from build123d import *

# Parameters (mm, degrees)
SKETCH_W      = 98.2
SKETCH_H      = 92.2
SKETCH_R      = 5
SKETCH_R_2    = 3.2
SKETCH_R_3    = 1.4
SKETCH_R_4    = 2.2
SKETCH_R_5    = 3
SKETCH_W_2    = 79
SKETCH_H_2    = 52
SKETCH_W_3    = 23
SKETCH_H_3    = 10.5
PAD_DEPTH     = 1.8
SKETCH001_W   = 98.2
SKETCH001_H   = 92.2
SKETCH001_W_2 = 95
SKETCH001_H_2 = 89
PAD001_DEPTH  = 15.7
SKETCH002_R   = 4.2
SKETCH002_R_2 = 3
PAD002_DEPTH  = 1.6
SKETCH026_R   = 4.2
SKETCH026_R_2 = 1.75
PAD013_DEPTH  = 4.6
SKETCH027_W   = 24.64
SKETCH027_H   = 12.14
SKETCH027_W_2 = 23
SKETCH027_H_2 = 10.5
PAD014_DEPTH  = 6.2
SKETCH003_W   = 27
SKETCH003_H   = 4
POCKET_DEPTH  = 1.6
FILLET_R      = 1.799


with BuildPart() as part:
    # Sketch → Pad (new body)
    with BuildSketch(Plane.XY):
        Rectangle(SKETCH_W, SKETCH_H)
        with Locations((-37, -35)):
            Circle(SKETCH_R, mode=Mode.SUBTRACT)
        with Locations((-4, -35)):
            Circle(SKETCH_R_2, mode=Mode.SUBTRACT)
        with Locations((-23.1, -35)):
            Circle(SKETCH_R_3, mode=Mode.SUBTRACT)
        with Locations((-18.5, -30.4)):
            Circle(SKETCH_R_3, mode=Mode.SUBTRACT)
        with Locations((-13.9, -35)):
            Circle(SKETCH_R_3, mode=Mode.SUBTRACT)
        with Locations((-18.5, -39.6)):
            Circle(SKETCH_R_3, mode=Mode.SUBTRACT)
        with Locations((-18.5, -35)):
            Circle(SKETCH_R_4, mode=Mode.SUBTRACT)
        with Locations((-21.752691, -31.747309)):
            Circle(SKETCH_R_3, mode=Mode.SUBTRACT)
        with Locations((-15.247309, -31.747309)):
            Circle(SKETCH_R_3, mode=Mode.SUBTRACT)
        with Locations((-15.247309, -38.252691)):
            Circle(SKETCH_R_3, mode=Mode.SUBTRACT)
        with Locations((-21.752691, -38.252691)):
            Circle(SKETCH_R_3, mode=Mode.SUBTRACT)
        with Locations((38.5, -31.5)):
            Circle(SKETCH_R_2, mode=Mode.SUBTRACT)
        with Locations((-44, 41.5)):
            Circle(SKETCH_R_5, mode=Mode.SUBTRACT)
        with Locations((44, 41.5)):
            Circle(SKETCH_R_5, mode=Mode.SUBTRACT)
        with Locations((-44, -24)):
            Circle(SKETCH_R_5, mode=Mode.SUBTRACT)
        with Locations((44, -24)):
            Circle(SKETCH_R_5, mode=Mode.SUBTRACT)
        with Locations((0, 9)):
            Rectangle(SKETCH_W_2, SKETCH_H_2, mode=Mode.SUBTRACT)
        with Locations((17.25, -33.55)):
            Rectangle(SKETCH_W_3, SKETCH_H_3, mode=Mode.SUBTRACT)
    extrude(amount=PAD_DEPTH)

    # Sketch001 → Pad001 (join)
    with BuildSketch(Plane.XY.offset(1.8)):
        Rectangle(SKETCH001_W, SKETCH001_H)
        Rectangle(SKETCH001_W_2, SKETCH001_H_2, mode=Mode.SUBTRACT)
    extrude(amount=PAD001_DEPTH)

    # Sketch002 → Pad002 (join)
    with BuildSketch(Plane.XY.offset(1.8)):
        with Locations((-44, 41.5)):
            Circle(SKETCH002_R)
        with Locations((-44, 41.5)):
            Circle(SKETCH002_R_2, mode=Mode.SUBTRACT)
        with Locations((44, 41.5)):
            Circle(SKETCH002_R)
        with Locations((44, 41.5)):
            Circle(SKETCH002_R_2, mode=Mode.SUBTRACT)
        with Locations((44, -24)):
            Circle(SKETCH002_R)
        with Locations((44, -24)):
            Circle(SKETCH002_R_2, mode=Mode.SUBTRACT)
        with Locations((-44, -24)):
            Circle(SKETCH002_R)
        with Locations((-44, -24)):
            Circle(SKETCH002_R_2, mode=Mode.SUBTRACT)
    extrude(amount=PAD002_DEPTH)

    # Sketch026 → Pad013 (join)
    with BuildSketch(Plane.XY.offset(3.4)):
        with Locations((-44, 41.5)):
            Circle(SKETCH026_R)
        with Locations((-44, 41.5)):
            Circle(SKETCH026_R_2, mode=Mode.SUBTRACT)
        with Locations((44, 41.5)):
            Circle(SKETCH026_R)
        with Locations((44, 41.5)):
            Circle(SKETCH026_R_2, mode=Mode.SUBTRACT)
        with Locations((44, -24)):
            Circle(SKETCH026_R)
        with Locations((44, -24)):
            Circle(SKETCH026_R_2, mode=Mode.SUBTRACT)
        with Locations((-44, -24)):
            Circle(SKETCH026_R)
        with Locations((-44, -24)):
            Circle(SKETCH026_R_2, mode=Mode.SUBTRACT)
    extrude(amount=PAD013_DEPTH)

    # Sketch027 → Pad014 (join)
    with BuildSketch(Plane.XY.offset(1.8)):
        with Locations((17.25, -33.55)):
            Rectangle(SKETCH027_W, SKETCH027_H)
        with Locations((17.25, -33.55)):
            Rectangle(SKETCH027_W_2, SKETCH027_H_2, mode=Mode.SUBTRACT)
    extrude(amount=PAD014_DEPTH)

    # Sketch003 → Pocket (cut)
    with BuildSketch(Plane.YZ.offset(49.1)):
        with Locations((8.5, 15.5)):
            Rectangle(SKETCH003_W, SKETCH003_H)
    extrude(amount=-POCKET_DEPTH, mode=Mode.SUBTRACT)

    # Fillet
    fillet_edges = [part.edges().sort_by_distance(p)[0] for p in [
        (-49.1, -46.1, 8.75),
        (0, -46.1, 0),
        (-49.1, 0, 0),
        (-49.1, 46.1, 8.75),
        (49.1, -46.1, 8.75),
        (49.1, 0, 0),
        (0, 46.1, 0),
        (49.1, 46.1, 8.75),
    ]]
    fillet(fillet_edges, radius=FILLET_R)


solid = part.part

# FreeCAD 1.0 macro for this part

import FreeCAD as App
import Part
import Sketcher
Q = App.Units.Quantity


def edges_at(feature, points):
    """Names of the edges that pass closest to the given points."""
    edges = feature.Shape.Edges
    near = lambda p: min(range(len(edges)), key=lambda i: edges[i].distToShape(Part.Vertex(*p))[0])
    return sorted({f"Edge{near(p) + 1}" for p in points})

doc = App.newDocument("Part")
body = doc.addObject("PartDesign::Body", "Body")

# Sketch on XY plane
sketch1 = body.newObject("Sketcher::SketchObject", "Sketch")
sketch1.AttachmentSupport = (doc.getObject("XY_Plane"), [""])
sketch1.MapMode = "FlatFace"
sketch1.addGeometry([
    Part.LineSegment(App.Vector(-49.1, 46.1, 0), App.Vector(-49.1, -46.1, 0)),  # 0
    Part.LineSegment(App.Vector(-49.1, -46.1, 0), App.Vector(49.1, -46.1, 0)),  # 1
    Part.LineSegment(App.Vector(49.1, -46.1, 0), App.Vector(49.1, 46.1, 0)),  # 2
    Part.LineSegment(App.Vector(49.1, 46.1, 0), App.Vector(-49.1, 46.1, 0)),  # 3
    Part.Circle(App.Vector(-37, -35, 0), App.Vector(0, 0, 1), 5),  # 4
    Part.Circle(App.Vector(-44, -24, 0), App.Vector(0, 0, 1), 3),  # 5
    Part.Circle(App.Vector(-18.5, -39.6, 0), App.Vector(0, 0, 1), 1.4),  # 6
    Part.Circle(App.Vector(-21.752691, -38.252691, 0), App.Vector(0, 0, 1), 1.4),  # 7
    Part.Circle(App.Vector(-15.247309, -38.252691, 0), App.Vector(0, 0, 1), 1.4),  # 8
    Part.Circle(App.Vector(-23.1, -35, 0), App.Vector(0, 0, 1), 1.4),  # 9
    Part.Circle(App.Vector(-18.5, -35, 0), App.Vector(0, 0, 1), 2.2),  # 10
    Part.Circle(App.Vector(-21.752691, -31.747309, 0), App.Vector(0, 0, 1), 1.4),  # 11
    Part.Circle(App.Vector(-18.5, -30.4, 0), App.Vector(0, 0, 1), 1.4),  # 12
    Part.Circle(App.Vector(-13.9, -35, 0), App.Vector(0, 0, 1), 1.4),  # 13
    Part.Circle(App.Vector(-15.247309, -31.747309, 0), App.Vector(0, 0, 1), 1.4),  # 14
    Part.Circle(App.Vector(-4, -35, 0), App.Vector(0, 0, 1), 3.2),  # 15
    Part.LineSegment(App.Vector(28.75, -38.8, 0), App.Vector(5.75, -38.8, 0)),  # 16
    Part.LineSegment(App.Vector(5.75, -38.8, 0), App.Vector(5.75, -28.3, 0)),  # 17
    Part.LineSegment(App.Vector(5.75, -28.3, 0), App.Vector(28.75, -28.3, 0)),  # 18
    Part.LineSegment(App.Vector(28.75, -28.3, 0), App.Vector(28.75, -38.8, 0)),  # 19
    Part.Circle(App.Vector(38.5, -31.5, 0), App.Vector(0, 0, 1), 3.2),  # 20
    Part.Circle(App.Vector(44, -24, 0), App.Vector(0, 0, 1), 3),  # 21
    Part.Circle(App.Vector(-44, 41.5, 0), App.Vector(0, 0, 1), 3),  # 22
    Part.LineSegment(App.Vector(39.5, -17, 0), App.Vector(-39.5, -17, 0)),  # 23
    Part.LineSegment(App.Vector(-39.5, -17, 0), App.Vector(-39.5, 35, 0)),  # 24
    Part.LineSegment(App.Vector(-39.5, 35, 0), App.Vector(39.5, 35, 0)),  # 25
    Part.LineSegment(App.Vector(39.5, 35, 0), App.Vector(39.5, -17, 0)),  # 26
    Part.Circle(App.Vector(44, 41.5, 0), App.Vector(0, 0, 1), 3),  # 27
], False)
sketch1.addConstraint([
    Sketcher.Constraint("Coincident", 0, 2, 1, 1),
    Sketcher.Constraint("Coincident", 1, 2, 2, 1),
    Sketcher.Constraint("Coincident", 2, 2, 3, 1),
    Sketcher.Constraint("Coincident", 3, 2, 0, 1),
    Sketcher.Constraint("Coincident", 16, 2, 17, 1),
    Sketcher.Constraint("Coincident", 17, 2, 18, 1),
    Sketcher.Constraint("Coincident", 18, 2, 19, 1),
    Sketcher.Constraint("Coincident", 19, 2, 16, 1),
    Sketcher.Constraint("Coincident", 23, 2, 24, 1),
    Sketcher.Constraint("Coincident", 24, 2, 25, 1),
    Sketcher.Constraint("Coincident", 25, 2, 26, 1),
    Sketcher.Constraint("Coincident", 26, 2, 23, 1),
    Sketcher.Constraint("Vertical", 0),
    Sketcher.Constraint("Horizontal", 1),
    Sketcher.Constraint("Vertical", 2),
    Sketcher.Constraint("Horizontal", 3),
    Sketcher.Constraint("Horizontal", 16),
    Sketcher.Constraint("Vertical", 17),
    Sketcher.Constraint("Horizontal", 18),
    Sketcher.Constraint("Vertical", 19),
    Sketcher.Constraint("Horizontal", 23),
    Sketcher.Constraint("Vertical", 24),
    Sketcher.Constraint("Horizontal", 25),
    Sketcher.Constraint("Vertical", 26),
    Sketcher.Constraint("Equal", 6, 7),
    Sketcher.Constraint("Equal", 7, 8),
    Sketcher.Constraint("Equal", 8, 9),
    Sketcher.Constraint("Equal", 9, 11),
    Sketcher.Constraint("Equal", 11, 12),
    Sketcher.Constraint("Equal", 12, 13),
    Sketcher.Constraint("Equal", 13, 14),
    Sketcher.Constraint("Equal", 15, 20),
    Sketcher.Constraint("Equal", 5, 21),
    Sketcher.Constraint("Equal", 21, 22),
    Sketcher.Constraint("Equal", 22, 27),
    Sketcher.Constraint("Symmetric", 0, 2, 2, 2, -1, 1),
    Sketcher.Constraint("Symmetric", 5, 3, 21, 3, -2),
    Sketcher.Constraint("Symmetric", 22, 3, 27, 3, -2),
    Sketcher.Constraint("Horizontal", 7, 3, 8, 3),
    Sketcher.Constraint("Horizontal", 4, 3, 9, 3),
    Sketcher.Constraint("Horizontal", 9, 3, 10, 3),
    Sketcher.Constraint("Horizontal", 10, 3, 13, 3),
    Sketcher.Constraint("Horizontal", 11, 3, 14, 3),
    Sketcher.Constraint("Horizontal", 13, 3, 15, 3),
    Sketcher.Constraint("Vertical", 6, 3, 10, 3),
    Sketcher.Constraint("Vertical", 7, 3, 11, 3),
    Sketcher.Constraint("Vertical", 10, 3, 12, 3),
    Sketcher.Constraint("Vertical", 8, 3, 14, 3),
    Sketcher.Constraint("Vertical", 5, 3, 22, 3),
    Sketcher.Constraint("Diameter", 4, Q("10 mm")),
    Sketcher.Constraint("Diameter", 5, Q("6 mm")),
    Sketcher.Constraint("Diameter", 6, Q("2.8 mm")),
    Sketcher.Constraint("Diameter", 10, Q("4.4 mm")),
    Sketcher.Constraint("Diameter", 15, Q("6.4 mm")),
    Sketcher.Constraint("DistanceX", 16, 2, 16, 1, Q("23 mm")),
    Sketcher.Constraint("DistanceX", 23, 2, 23, 1, Q("79 mm")),
    Sketcher.Constraint("DistanceY", 24, 1, 24, 2, Q("52 mm")),
    Sketcher.Constraint("DistanceX", 1, 1, 1, 2, Q("98.2 mm")),
    Sketcher.Constraint("DistanceY", 0, 2, 0, 1, Q("92.2 mm")),
    Sketcher.Constraint("DistanceY", 17, 1, 17, 2, Q("10.5 mm")),
    Sketcher.Constraint("DistanceX", 4, 3, -1, 1, Q("37 mm")),
    Sketcher.Constraint("DistanceY", 4, 3, -1, 1, Q("35 mm")),
    Sketcher.Constraint("DistanceX", 5, 3, -1, 1, Q("44 mm")),
    Sketcher.Constraint("DistanceY", 5, 3, -1, 1, Q("24 mm")),
    Sketcher.Constraint("DistanceX", 15, 3, -1, 1, Q("4 mm")),
    Sketcher.Constraint("DistanceY", 23, 2, -1, 1, Q("17 mm")),
    Sketcher.Constraint("DistanceX", 12, 3, 20, 3, Q("57 mm")),
    Sketcher.Constraint("DistanceY", 20, 3, 27, 3, Q("73 mm")),
    Sketcher.Constraint("DistanceX", 0, 2, 9, 3, Q("26 mm")),
    Sketcher.Constraint("DistanceX", 13, 3, 1, 2, Q("63 mm")),
    Sketcher.Constraint("DistanceX", 23, 2, 12, 3, Q("21 mm")),
    Sketcher.Constraint("DistanceX", 6, 3, -1, 1, Q("18.5 mm")),
    Sketcher.Constraint("DistanceY", 6, 3, -1, 1, Q("39.6 mm")),
    Sketcher.Constraint("DistanceY", 12, 3, -1, 1, Q("30.4 mm")),
    Sketcher.Constraint("DistanceY", 20, 3, -1, 1, Q("31.5 mm")),
    Sketcher.Constraint("DistanceY", 16, 2, -1, 1, Q("38.8 mm")),
    Sketcher.Constraint("DistanceX", -1, 1, 16, 2, Q("5.75 mm")),
    Sketcher.Constraint("DistanceX", 7, 3, -1, 1, Q("21.752691 mm")),
    Sketcher.Constraint("DistanceY", 7, 3, -1, 1, Q("38.252691 mm")),
    Sketcher.Constraint("DistanceX", 8, 3, -1, 1, Q("15.247309 mm")),
    Sketcher.Constraint("DistanceY", 11, 3, -1, 1, Q("31.747309 mm")),
])
pad1 = body.newObject("PartDesign::Pad", "Pad")
pad1.Profile = sketch1
pad1.Length = 1.8

# Sketch on XY plane
sketch2 = body.newObject("Sketcher::SketchObject", "Sketch001")
sketch2.AttachmentSupport = (doc.getObject("XY_Plane"), [""])
sketch2.MapMode = "FlatFace"
sketch2.AttachmentOffset = App.Placement(App.Vector(0, 0, 1.8), App.Rotation())
sketch2.addGeometry([
    Part.LineSegment(App.Vector(-49.1, 46.1, 0), App.Vector(-49.1, -46.1, 0)),  # 0
    Part.LineSegment(App.Vector(-49.1, -46.1, 0), App.Vector(49.1, -46.1, 0)),  # 1
    Part.LineSegment(App.Vector(49.1, -46.1, 0), App.Vector(49.1, 46.1, 0)),  # 2
    Part.LineSegment(App.Vector(49.1, 46.1, 0), App.Vector(-49.1, 46.1, 0)),  # 3
    Part.LineSegment(App.Vector(47.5, -44.5, 0), App.Vector(-47.5, -44.5, 0)),  # 4
    Part.LineSegment(App.Vector(-47.5, -44.5, 0), App.Vector(-47.5, 44.5, 0)),  # 5
    Part.LineSegment(App.Vector(-47.5, 44.5, 0), App.Vector(47.5, 44.5, 0)),  # 6
    Part.LineSegment(App.Vector(47.5, 44.5, 0), App.Vector(47.5, -44.5, 0)),  # 7
], False)
sketch2.addConstraint([
    Sketcher.Constraint("Coincident", 0, 2, 1, 1),
    Sketcher.Constraint("Coincident", 1, 2, 2, 1),
    Sketcher.Constraint("Coincident", 2, 2, 3, 1),
    Sketcher.Constraint("Coincident", 3, 2, 0, 1),
    Sketcher.Constraint("Coincident", 4, 2, 5, 1),
    Sketcher.Constraint("Coincident", 5, 2, 6, 1),
    Sketcher.Constraint("Coincident", 6, 2, 7, 1),
    Sketcher.Constraint("Coincident", 7, 2, 4, 1),
    Sketcher.Constraint("Vertical", 0),
    Sketcher.Constraint("Horizontal", 1),
    Sketcher.Constraint("Vertical", 2),
    Sketcher.Constraint("Horizontal", 3),
    Sketcher.Constraint("Horizontal", 4),
    Sketcher.Constraint("Vertical", 5),
    Sketcher.Constraint("Horizontal", 6),
    Sketcher.Constraint("Vertical", 7),
    Sketcher.Constraint("Symmetric", 0, 2, 2, 2, -1, 1),
    Sketcher.Constraint("Symmetric", 4, 2, 6, 2, -1, 1),
    Sketcher.Constraint("DistanceX", 4, 2, 4, 1, Q("95 mm")),
    Sketcher.Constraint("DistanceY", 5, 1, 5, 2, Q("89 mm")),
    Sketcher.Constraint("DistanceX", 1, 1, 1, 2, Q("98.2 mm")),
    Sketcher.Constraint("DistanceY", 0, 2, 0, 1, Q("92.2 mm")),
])
pad2 = body.newObject("PartDesign::Pad", "Pad001")
pad2.Profile = sketch2
pad2.Length = 15.7

# Sketch on XY plane
sketch3 = body.newObject("Sketcher::SketchObject", "Sketch002")
sketch3.AttachmentSupport = (doc.getObject("XY_Plane"), [""])
sketch3.MapMode = "FlatFace"
sketch3.AttachmentOffset = App.Placement(App.Vector(0, 0, 1.8), App.Rotation())
sketch3.addGeometry([
    Part.Circle(App.Vector(-44, 41.5, 0), App.Vector(0, 0, 1), 4.2),  # 0
    Part.Circle(App.Vector(-44, 41.5, 0), App.Vector(0, 0, 1), 3),  # 1
    Part.Circle(App.Vector(44, 41.5, 0), App.Vector(0, 0, 1), 4.2),  # 2
    Part.Circle(App.Vector(44, 41.5, 0), App.Vector(0, 0, 1), 3),  # 3
    Part.Circle(App.Vector(44, -24, 0), App.Vector(0, 0, 1), 4.2),  # 4
    Part.Circle(App.Vector(44, -24, 0), App.Vector(0, 0, 1), 3),  # 5
    Part.Circle(App.Vector(-44, -24, 0), App.Vector(0, 0, 1), 4.2),  # 6
    Part.Circle(App.Vector(-44, -24, 0), App.Vector(0, 0, 1), 3),  # 7
], False)
sketch3.addConstraint([
    Sketcher.Constraint("Coincident", 1, 3, 0, 3),
    Sketcher.Constraint("Coincident", 3, 3, 2, 3),
    Sketcher.Constraint("Coincident", 5, 3, 4, 3),
    Sketcher.Constraint("Coincident", 7, 3, 6, 3),
    Sketcher.Constraint("Equal", 0, 2),
    Sketcher.Constraint("Equal", 1, 3),
    Sketcher.Constraint("Equal", 2, 4),
    Sketcher.Constraint("Equal", 3, 5),
    Sketcher.Constraint("Equal", 4, 6),
    Sketcher.Constraint("Equal", 5, 7),
    Sketcher.Constraint("Symmetric", 0, 3, 2, 3, -2),
    Sketcher.Constraint("Symmetric", 4, 3, 6, 3, -2),
    Sketcher.Constraint("Vertical", 3, 3, 4, 3),
    Sketcher.Constraint("Diameter", 1, Q("6 mm")),
    Sketcher.Constraint("Diameter", 0, Q("8.4 mm")),
    Sketcher.Constraint("DistanceX", 0, 3, -1, 1, Q("44 mm")),
    Sketcher.Constraint("DistanceY", 4, 3, -1, 1, Q("24 mm")),
    Sketcher.Constraint("DistanceY", -1, 1, 0, 3, Q("41.5 mm")),
])
pad3 = body.newObject("PartDesign::Pad", "Pad002")
pad3.Profile = sketch3
pad3.Length = 1.6

# Sketch on XY plane
sketch4 = body.newObject("Sketcher::SketchObject", "Sketch003")
sketch4.AttachmentSupport = (doc.getObject("XY_Plane"), [""])
sketch4.MapMode = "FlatFace"
sketch4.AttachmentOffset = App.Placement(App.Vector(0, 0, 3.4), App.Rotation())
sketch4.addGeometry([
    Part.Circle(App.Vector(-44, 41.5, 0), App.Vector(0, 0, 1), 4.2),  # 0
    Part.Circle(App.Vector(-44, 41.5, 0), App.Vector(0, 0, 1), 1.75),  # 1
    Part.Circle(App.Vector(44, 41.5, 0), App.Vector(0, 0, 1), 4.2),  # 2
    Part.Circle(App.Vector(44, 41.5, 0), App.Vector(0, 0, 1), 1.75),  # 3
    Part.Circle(App.Vector(44, -24, 0), App.Vector(0, 0, 1), 4.2),  # 4
    Part.Circle(App.Vector(44, -24, 0), App.Vector(0, 0, 1), 1.75),  # 5
    Part.Circle(App.Vector(-44, -24, 0), App.Vector(0, 0, 1), 4.2),  # 6
    Part.Circle(App.Vector(-44, -24, 0), App.Vector(0, 0, 1), 1.75),  # 7
], False)
sketch4.addConstraint([
    Sketcher.Constraint("Coincident", 1, 3, 0, 3),
    Sketcher.Constraint("Coincident", 3, 3, 2, 3),
    Sketcher.Constraint("Coincident", 5, 3, 4, 3),
    Sketcher.Constraint("Coincident", 7, 3, 6, 3),
    Sketcher.Constraint("Equal", 0, 2),
    Sketcher.Constraint("Equal", 1, 3),
    Sketcher.Constraint("Equal", 2, 4),
    Sketcher.Constraint("Equal", 3, 5),
    Sketcher.Constraint("Equal", 4, 6),
    Sketcher.Constraint("Equal", 5, 7),
    Sketcher.Constraint("Symmetric", 0, 3, 2, 3, -2),
    Sketcher.Constraint("Symmetric", 4, 3, 6, 3, -2),
    Sketcher.Constraint("Vertical", 3, 3, 4, 3),
    Sketcher.Constraint("Diameter", 0, Q("8.4 mm")),
    Sketcher.Constraint("Diameter", 1, Q("3.5 mm")),
    Sketcher.Constraint("DistanceX", 0, 3, -1, 1, Q("44 mm")),
    Sketcher.Constraint("DistanceY", 4, 3, -1, 1, Q("24 mm")),
    Sketcher.Constraint("DistanceY", -1, 1, 0, 3, Q("41.5 mm")),
])
pad4 = body.newObject("PartDesign::Pad", "Pad003")
pad4.Profile = sketch4
pad4.Length = 4.6

# Sketch on XY plane
sketch5 = body.newObject("Sketcher::SketchObject", "Sketch004")
sketch5.AttachmentSupport = (doc.getObject("XY_Plane"), [""])
sketch5.MapMode = "FlatFace"
sketch5.AttachmentOffset = App.Placement(App.Vector(0, 0, 1.8), App.Rotation())
sketch5.addGeometry([
    Part.LineSegment(App.Vector(4.93, -27.48, 0), App.Vector(4.93, -39.62, 0)),  # 0
    Part.LineSegment(App.Vector(4.93, -39.62, 0), App.Vector(29.57, -39.62, 0)),  # 1
    Part.LineSegment(App.Vector(29.57, -39.62, 0), App.Vector(29.57, -27.48, 0)),  # 2
    Part.LineSegment(App.Vector(29.57, -27.48, 0), App.Vector(4.93, -27.48, 0)),  # 3
    Part.LineSegment(App.Vector(28.75, -38.8, 0), App.Vector(5.75, -38.8, 0)),  # 4
    Part.LineSegment(App.Vector(5.75, -38.8, 0), App.Vector(5.75, -28.3, 0)),  # 5
    Part.LineSegment(App.Vector(5.75, -28.3, 0), App.Vector(28.75, -28.3, 0)),  # 6
    Part.LineSegment(App.Vector(28.75, -28.3, 0), App.Vector(28.75, -38.8, 0)),  # 7
], False)
sketch5.addConstraint([
    Sketcher.Constraint("Coincident", 0, 2, 1, 1),
    Sketcher.Constraint("Coincident", 1, 2, 2, 1),
    Sketcher.Constraint("Coincident", 2, 2, 3, 1),
    Sketcher.Constraint("Coincident", 3, 2, 0, 1),
    Sketcher.Constraint("Coincident", 4, 2, 5, 1),
    Sketcher.Constraint("Coincident", 5, 2, 6, 1),
    Sketcher.Constraint("Coincident", 6, 2, 7, 1),
    Sketcher.Constraint("Coincident", 7, 2, 4, 1),
    Sketcher.Constraint("Vertical", 0),
    Sketcher.Constraint("Horizontal", 1),
    Sketcher.Constraint("Vertical", 2),
    Sketcher.Constraint("Horizontal", 3),
    Sketcher.Constraint("Horizontal", 4),
    Sketcher.Constraint("Vertical", 5),
    Sketcher.Constraint("Horizontal", 6),
    Sketcher.Constraint("Vertical", 7),
    Sketcher.Constraint("DistanceX", 4, 2, 4, 1, Q("23 mm")),
    Sketcher.Constraint("DistanceY", 5, 1, 5, 2, Q("10.5 mm")),
    Sketcher.Constraint("DistanceX", 1, 1, 1, 2, Q("24.64 mm")),
    Sketcher.Constraint("DistanceY", 0, 2, 0, 1, Q("12.14 mm")),
    Sketcher.Constraint("DistanceY", 4, 2, -1, 1, Q("38.8 mm")),
    Sketcher.Constraint("DistanceX", -1, 1, 0, 2, Q("4.93 mm")),
    Sketcher.Constraint("DistanceY", 0, 2, -1, 1, Q("39.62 mm")),
    Sketcher.Constraint("DistanceX", -1, 1, 4, 2, Q("5.75 mm")),
])
pad5 = body.newObject("PartDesign::Pad", "Pad004")
pad5.Profile = sketch5
pad5.Length = 6.2

# Sketch on YZ plane
sketch6 = body.newObject("Sketcher::SketchObject", "Sketch005")
sketch6.AttachmentSupport = (doc.getObject("YZ_Plane"), [""])
sketch6.MapMode = "FlatFace"
sketch6.AttachmentOffset = App.Placement(App.Vector(0, 0, 49.1), App.Rotation())
sketch6.addGeometry([
    Part.LineSegment(App.Vector(-5, 17.5, 0), App.Vector(-5, 13.5, 0)),
    Part.LineSegment(App.Vector(-5, 13.5, 0), App.Vector(22, 13.5, 0)),
    Part.LineSegment(App.Vector(22, 13.5, 0), App.Vector(22, 17.5, 0)),
    Part.LineSegment(App.Vector(22, 17.5, 0), App.Vector(-5, 17.5, 0)),
], False)
sketch6.addConstraint([
    Sketcher.Constraint("Coincident", 0, 2, 1, 1),
    Sketcher.Constraint("Coincident", 1, 2, 2, 1),
    Sketcher.Constraint("Coincident", 2, 2, 3, 1),
    Sketcher.Constraint("Coincident", 3, 2, 0, 1),
    Sketcher.Constraint("Vertical", 0),
    Sketcher.Constraint("Horizontal", 1),
    Sketcher.Constraint("Vertical", 2),
    Sketcher.Constraint("Horizontal", 3),
    Sketcher.Constraint("DistanceX", 1, 1, 1, 2, Q("27 mm")),
    Sketcher.Constraint("DistanceY", 0, 2, 0, 1, Q("4 mm")),
    Sketcher.Constraint("DistanceX", 0, 2, -1, 1, Q("5 mm")),
    Sketcher.Constraint("DistanceY", -1, 1, 0, 2, Q("13.5 mm")),
])
pocket1 = body.newObject("PartDesign::Pocket", "Pocket")
pocket1.Profile = sketch6
pocket1.Length = 1.6
doc.recompute()

fillet = body.newObject("PartDesign::Fillet", "Fillet")
fillet.Base = (pocket1, edges_at(pocket1, [
    (-49.1, -46.1, 8.75),
    (0, -46.1, 0),
    (-49.1, 0, 0),
    (-49.1, 46.1, 8.75),
    (49.1, -46.1, 8.75),
    (49.1, 0, 0),
    (0, 46.1, 0),
    (49.1, 46.1, 8.75),
]))
fillet.Radius = 1.799

doc.recompute()
